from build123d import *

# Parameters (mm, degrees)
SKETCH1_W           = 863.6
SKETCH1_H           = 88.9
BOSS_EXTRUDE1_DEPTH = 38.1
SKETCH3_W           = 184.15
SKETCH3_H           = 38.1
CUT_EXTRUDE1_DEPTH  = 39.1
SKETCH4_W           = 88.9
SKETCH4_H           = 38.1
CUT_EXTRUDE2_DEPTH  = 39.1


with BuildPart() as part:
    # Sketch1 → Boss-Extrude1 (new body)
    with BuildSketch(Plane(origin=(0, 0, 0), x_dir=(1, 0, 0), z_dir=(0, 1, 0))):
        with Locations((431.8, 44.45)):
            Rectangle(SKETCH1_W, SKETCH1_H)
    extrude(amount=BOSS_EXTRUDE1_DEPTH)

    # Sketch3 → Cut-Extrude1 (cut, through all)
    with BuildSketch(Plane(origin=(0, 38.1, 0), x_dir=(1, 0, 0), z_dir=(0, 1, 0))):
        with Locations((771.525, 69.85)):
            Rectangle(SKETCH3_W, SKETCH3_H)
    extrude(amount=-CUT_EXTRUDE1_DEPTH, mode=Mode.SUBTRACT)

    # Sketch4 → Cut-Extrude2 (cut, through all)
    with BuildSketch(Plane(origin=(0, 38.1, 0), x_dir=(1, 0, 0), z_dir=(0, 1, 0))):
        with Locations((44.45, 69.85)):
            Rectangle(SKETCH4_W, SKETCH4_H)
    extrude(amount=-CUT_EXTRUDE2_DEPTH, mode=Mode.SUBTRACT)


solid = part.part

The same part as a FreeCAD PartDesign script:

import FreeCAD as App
import Part
import Sketcher
Q = App.Units.Quantity

doc = App.newDocument("Part")
body = doc.addObject("PartDesign::Body", "Body")

sketch1 = body.newObject("Sketcher::SketchObject", "Sketch")
sketch1.AttachmentSupport = (doc.getObject("XZ_Plane"), [""])
sketch1.MapMode = "FlatFace"
sketch1.addGeometry(Part.LineSegment(App.Vector(0, -89, 0), App.Vector(0, 0, 0)), False)
sketch1.addGeometry(Part.LineSegment(App.Vector(0, 0, 0), App.Vector(864, 0, 0)), False)
sketch1.addGeometry(Part.LineSegment(App.Vector(864, 0, 0), App.Vector(864, -89, 0)), False)
sketch1.addGeometry(Part.LineSegment(App.Vector(864, -89, 0), App.Vector(0, -89, 0)), False)
sketch1.addConstraint(Sketcher.Constraint("Coincident", 0, 2, 1, 1))
sketch1.addConstraint(Sketcher.Constraint("Coincident", 1, 2, 2, 1))
sketch1.addConstraint(Sketcher.Constraint("Coincident", 2, 2, 3, 1))
sketch1.addConstraint(Sketcher.Constraint("Coincident", 3, 2, 0, 1))
sketch1.addConstraint(Sketcher.Constraint("Vertical", 0))
sketch1.addConstraint(Sketcher.Constraint("Horizontal", 1))
sketch1.addConstraint(Sketcher.Constraint("Vertical", 2))
sketch1.addConstraint(Sketcher.Constraint("Horizontal", 3))
sketch1.addConstraint(Sketcher.Constraint("Coincident", 0, 2, -1, 1))
sketch1.addConstraint(Sketcher.Constraint("DistanceX", 1, 1, 1, 2, Q("34 in")))
sketch1.addConstraint(Sketcher.Constraint("DistanceY", 0, 1, 0, 2, Q("3.5 in")))
pad1 = body.newObject("PartDesign::Pad", "Pad")
pad1.Profile = sketch1
pad1.Length = Q("1.5 in")
pad1.Reversed = True

sketch2 = body.newObject("Sketcher::SketchObject", "Sketch001")
sketch2.AttachmentSupport = (doc.getObject("XZ_Plane"), [""])
sketch2.MapMode = "FlatFace"
sketch2.AttachmentOffset = App.Placement(App.Vector(0, 0, -1.5 * 25.4), App.Rotation())
sketch2.addGeometry(Part.LineSegment(App.Vector(679, -89, 0), App.Vector(679, -51, 0)), False)
sketch2.addGeometry(Part.LineSegment(App.Vector(679, -51, 0), App.Vector(864, -51, 0)), False)
sketch2.addGeometry(Part.LineSegment(App.Vector(864, -51, 0), App.Vector(864, -89, 0)), False)
sketch2.addGeometry(Part.LineSegment(App.Vector(864, -89, 0), App.Vector(679, -89, 0)), False)
sketch2.addConstraint(Sketcher.Constraint("Coincident", 0, 2, 1, 1))
sketch2.addConstraint(Sketcher.Constraint("Coincident", 1, 2, 2, 1))
sketch2.addConstraint(Sketcher.Constraint("Coincident", 2, 2, 3, 1))
sketch2.addConstraint(Sketcher.Constraint("Coincident", 3, 2, 0, 1))
sketch2.addConstraint(Sketcher.Constraint("Vertical", 0))
sketch2.addConstraint(Sketcher.Constraint("Horizontal", 1))
sketch2.addConstraint(Sketcher.Constraint("Vertical", 2))
sketch2.addConstraint(Sketcher.Constraint("Horizontal", 3))
sketch2.addConstraint(Sketcher.Constraint("DistanceY", 0, 1, 0, 2, Q("1.5 in")))
sketch2.addConstraint(Sketcher.Constraint("DistanceY", 0, 2, -1, 1, Q("2 in")))
sketch2.addConstraint(Sketcher.Constraint("DistanceX", -1, 1, 1, 2, Q("34 in")))
sketch2.addConstraint(Sketcher.Constraint("DistanceX", 1, 1, 1, 2, Q("7.25 in")))
pocket1 = body.newObject("PartDesign::Pocket", "Pocket")
pocket1.Profile = sketch2
pocket1.Type = "ThroughAll"
pocket1.Reversed = True

sketch3 = body.newObject("Sketcher::SketchObject", "Sketch002")
sketch3.AttachmentSupport = (doc.getObject("XZ_Plane"), [""])
sketch3.MapMode = "FlatFace"
sketch3.AttachmentOffset = App.Placement(App.Vector(0, 0, -1.5 * 25.4), App.Rotation())
sketch3.addGeometry(Part.LineSegment(App.Vector(0, -89, 0), App.Vector(0, -51, 0)), False)
sketch3.addGeometry(Part.LineSegment(App.Vector(0, -51, 0), App.Vector(89, -51, 0)), False)
sketch3.addGeometry(Part.LineSegment(App.Vector(89, -51, 0), App.Vector(89, -89, 0)), False)
sketch3.addGeometry(Part.LineSegment(App.Vector(89, -89, 0), App.Vector(0, -89, 0)), False)
sketch3.addConstraint(Sketcher.Constraint("Coincident", 0, 2, 1, 1))
sketch3.addConstraint(Sketcher.Constraint("Coincident", 1, 2, 2, 1))
sketch3.addConstraint(Sketcher.Constraint("Coincident", 2, 2, 3, 1))
sketch3.addConstraint(Sketcher.Constraint("Coincident", 3, 2, 0, 1))
sketch3.addConstraint(Sketcher.Constraint("Vertical", 0))
sketch3.addConstraint(Sketcher.Constraint("Horizontal", 1))
sketch3.addConstraint(Sketcher.Constraint("Vertical", 2))
sketch3.addConstraint(Sketcher.Constraint("Horizontal", 3))
sketch3.addConstraint(Sketcher.Constraint("PointOnObject", 0, 2, -2))
sketch3.addConstraint(Sketcher.Constraint("DistanceX", 1, 1, 1, 2, Q("3.5 in")))
sketch3.addConstraint(Sketcher.Constraint("DistanceY", 0, 1, 0, 2, Q("1.5 in")))
sketch3.addConstraint(Sketcher.Constraint("DistanceY", 0, 2, -1, 1, Q("2 in")))
pocket2 = body.newObject("PartDesign::Pocket", "Pocket001")
pocket2.Profile = sketch3
pocket2.Type = "ThroughAll"
pocket2.Reversed = True

doc.recompute()
